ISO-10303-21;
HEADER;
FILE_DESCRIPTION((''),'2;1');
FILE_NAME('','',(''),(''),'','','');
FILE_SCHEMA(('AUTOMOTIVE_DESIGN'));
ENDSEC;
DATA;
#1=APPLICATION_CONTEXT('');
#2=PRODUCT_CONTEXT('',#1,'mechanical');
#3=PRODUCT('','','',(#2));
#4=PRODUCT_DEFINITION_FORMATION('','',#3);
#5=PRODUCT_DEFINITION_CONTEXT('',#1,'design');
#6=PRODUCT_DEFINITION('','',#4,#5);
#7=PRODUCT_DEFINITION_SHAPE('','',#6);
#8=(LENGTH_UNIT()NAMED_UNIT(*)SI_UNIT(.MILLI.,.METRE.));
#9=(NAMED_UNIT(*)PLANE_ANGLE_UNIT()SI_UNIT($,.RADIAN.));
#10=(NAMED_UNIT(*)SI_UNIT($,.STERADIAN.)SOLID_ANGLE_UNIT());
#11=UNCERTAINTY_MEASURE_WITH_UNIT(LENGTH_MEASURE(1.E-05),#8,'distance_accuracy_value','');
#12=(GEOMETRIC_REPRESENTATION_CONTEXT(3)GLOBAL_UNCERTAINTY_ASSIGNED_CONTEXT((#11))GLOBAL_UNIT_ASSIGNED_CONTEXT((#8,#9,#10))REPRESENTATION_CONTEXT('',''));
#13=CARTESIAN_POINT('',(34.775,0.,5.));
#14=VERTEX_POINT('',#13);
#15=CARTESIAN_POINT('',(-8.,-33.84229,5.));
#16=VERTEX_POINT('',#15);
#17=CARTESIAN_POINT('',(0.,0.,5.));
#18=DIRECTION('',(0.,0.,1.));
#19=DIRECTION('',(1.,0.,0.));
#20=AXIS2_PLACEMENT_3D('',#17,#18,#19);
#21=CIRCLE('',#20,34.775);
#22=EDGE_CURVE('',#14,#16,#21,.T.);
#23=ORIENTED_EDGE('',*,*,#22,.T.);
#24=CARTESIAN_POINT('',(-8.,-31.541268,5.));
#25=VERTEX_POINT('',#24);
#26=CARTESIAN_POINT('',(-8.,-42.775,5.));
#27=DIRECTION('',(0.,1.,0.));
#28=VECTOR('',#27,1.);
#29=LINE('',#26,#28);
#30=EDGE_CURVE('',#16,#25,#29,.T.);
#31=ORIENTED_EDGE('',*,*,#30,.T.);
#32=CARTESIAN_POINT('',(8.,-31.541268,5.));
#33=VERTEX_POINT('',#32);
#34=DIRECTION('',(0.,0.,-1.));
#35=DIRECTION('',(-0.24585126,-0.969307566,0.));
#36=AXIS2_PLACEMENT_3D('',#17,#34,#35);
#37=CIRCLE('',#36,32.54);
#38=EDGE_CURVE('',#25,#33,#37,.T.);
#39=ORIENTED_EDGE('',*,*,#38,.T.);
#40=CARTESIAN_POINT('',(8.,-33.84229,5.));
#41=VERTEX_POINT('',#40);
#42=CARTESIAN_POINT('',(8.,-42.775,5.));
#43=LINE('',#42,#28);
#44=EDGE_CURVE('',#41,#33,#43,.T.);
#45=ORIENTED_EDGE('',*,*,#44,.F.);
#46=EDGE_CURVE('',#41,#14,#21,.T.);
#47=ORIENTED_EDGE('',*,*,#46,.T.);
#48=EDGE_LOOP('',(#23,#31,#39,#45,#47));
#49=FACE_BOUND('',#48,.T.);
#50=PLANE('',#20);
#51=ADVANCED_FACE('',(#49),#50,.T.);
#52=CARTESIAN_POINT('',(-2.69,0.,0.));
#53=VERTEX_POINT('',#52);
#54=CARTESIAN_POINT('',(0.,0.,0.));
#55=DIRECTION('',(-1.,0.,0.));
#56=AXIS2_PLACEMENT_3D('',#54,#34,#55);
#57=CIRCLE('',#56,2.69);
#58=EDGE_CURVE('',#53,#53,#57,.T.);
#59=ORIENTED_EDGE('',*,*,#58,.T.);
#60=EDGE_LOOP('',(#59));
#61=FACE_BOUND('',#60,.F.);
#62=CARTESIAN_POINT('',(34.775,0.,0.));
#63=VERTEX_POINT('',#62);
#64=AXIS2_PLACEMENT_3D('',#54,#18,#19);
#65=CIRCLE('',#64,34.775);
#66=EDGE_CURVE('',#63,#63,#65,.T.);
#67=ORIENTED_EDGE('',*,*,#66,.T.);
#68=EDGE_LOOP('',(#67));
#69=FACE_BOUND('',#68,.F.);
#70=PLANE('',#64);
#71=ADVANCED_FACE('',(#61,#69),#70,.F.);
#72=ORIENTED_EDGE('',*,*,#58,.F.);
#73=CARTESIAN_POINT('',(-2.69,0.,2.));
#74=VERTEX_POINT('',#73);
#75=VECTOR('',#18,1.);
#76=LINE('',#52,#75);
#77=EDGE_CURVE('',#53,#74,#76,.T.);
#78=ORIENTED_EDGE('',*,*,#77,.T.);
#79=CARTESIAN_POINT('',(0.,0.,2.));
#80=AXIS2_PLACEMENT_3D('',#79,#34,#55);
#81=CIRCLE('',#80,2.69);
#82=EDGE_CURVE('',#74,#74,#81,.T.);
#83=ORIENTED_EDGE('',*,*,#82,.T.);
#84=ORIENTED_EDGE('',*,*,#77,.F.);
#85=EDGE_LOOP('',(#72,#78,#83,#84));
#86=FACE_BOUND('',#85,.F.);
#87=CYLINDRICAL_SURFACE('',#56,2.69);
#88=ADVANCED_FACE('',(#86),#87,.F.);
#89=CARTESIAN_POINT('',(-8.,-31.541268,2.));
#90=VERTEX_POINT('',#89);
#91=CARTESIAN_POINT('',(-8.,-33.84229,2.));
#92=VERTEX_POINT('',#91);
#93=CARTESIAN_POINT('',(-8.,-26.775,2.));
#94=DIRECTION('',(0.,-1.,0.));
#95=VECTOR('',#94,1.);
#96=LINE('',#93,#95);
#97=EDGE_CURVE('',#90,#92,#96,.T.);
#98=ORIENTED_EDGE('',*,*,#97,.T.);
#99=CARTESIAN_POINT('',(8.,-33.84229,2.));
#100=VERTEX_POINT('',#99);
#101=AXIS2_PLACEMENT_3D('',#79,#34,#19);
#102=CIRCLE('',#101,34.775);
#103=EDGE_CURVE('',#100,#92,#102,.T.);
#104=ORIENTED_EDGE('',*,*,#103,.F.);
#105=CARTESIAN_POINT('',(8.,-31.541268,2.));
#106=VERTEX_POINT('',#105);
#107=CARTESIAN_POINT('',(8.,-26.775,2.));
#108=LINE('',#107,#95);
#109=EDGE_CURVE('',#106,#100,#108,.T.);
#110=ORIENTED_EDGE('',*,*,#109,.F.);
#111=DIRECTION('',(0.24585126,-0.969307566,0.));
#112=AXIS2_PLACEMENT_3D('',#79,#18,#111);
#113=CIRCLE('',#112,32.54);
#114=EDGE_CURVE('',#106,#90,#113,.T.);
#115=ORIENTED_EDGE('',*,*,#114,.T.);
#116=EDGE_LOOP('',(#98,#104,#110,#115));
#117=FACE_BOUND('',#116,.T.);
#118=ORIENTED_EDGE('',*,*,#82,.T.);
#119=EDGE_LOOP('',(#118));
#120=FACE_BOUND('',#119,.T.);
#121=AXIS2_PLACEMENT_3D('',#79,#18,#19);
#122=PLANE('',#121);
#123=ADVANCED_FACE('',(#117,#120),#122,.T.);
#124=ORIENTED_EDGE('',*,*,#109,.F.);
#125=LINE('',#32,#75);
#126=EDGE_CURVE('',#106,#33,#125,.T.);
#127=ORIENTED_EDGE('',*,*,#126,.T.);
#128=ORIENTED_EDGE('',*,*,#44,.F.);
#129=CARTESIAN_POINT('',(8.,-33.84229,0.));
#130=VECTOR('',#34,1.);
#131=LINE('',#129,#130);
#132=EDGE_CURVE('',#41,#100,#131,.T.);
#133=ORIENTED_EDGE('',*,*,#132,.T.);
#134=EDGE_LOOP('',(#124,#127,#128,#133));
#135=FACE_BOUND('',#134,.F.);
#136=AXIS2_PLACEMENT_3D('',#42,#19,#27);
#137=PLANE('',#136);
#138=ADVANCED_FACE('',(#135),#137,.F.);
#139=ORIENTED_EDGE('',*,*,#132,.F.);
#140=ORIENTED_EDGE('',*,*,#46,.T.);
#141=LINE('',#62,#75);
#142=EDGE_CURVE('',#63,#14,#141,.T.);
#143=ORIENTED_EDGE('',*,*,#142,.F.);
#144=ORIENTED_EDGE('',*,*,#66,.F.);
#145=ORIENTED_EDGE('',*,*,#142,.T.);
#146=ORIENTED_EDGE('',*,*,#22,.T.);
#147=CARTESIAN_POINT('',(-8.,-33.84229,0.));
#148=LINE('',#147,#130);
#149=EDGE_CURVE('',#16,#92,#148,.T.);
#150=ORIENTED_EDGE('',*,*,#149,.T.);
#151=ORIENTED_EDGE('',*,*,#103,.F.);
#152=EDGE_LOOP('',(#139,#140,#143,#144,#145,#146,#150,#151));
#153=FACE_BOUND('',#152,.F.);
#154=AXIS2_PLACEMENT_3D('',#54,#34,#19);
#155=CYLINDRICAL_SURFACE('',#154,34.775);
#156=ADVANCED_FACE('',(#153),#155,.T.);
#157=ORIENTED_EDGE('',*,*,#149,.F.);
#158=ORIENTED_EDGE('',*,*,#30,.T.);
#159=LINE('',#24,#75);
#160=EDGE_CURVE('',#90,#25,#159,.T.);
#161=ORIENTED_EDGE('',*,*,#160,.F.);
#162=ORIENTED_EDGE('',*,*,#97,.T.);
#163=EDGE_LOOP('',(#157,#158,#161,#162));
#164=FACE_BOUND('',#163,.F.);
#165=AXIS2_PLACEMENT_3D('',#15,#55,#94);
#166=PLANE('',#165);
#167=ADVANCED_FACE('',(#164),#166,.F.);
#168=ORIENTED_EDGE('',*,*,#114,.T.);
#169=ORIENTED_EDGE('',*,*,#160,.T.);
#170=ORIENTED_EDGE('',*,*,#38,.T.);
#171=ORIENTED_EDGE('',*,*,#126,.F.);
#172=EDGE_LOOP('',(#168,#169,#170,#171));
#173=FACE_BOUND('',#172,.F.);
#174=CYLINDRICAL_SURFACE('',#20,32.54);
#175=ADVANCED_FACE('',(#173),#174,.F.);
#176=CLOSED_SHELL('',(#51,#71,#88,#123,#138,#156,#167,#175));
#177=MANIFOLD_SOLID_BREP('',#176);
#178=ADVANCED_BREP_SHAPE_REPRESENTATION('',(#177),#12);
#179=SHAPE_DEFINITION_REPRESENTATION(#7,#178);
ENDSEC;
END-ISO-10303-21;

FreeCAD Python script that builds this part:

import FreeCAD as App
import Part
import Sketcher
from FreeCAD import Vector


def add_polygon(sketch, points):
    """Adds a closed chain of lines whose ends are joined by coincident constraints."""
    first, n = sketch.GeometryCount, len(points)
    for a, b in zip(points, points[1:] + points[:1]):
        sketch.addGeometry(Part.LineSegment(App.Vector(*a, 0), App.Vector(*b, 0)), False)
    for i in range(n):
        sketch.addConstraint(Sketcher.Constraint("Coincident", first + i, 2, first + (i + 1) % n, 1))

doc = App.newDocument("Part")
body = doc.addObject("PartDesign::Body", "Body")

# Sketch on XY plane
sketch1 = body.newObject("Sketcher::SketchObject", "Sketch")
sketch1.AttachmentSupport = (doc.getObject("XY_Plane"), [""])
sketch1.MapMode = "FlatFace"
sketch1.addGeometry(Part.Circle(Vector(0, 0, 0), Vector(0, 0, 1), 34.775), False)
sketch1.addConstraint([
    Sketcher.Constraint("Coincident", 0, 3, -1, 1),
    Sketcher.Constraint("Diameter", 0, 69.55),
])
pad1 = body.newObject("PartDesign::Pad", "Pad")
pad1.Profile = sketch1
pad1.Length = 5

# Sketch on XY plane
sketch2 = body.newObject("Sketcher::SketchObject", "Sketch001")
sketch2.AttachmentSupport = (doc.getObject("XY_Plane"), [""])
sketch2.MapMode = "FlatFace"
sketch2.AttachmentOffset = App.Placement(Vector(0, 0, 5), App.Rotation())
sketch2.addGeometry(Part.Circle(Vector(0, 0, 0), Vector(0, 0, 1), 32.54), False)
sketch2.addConstraint([
    Sketcher.Constraint("Coincident", 0, 3, -1, 1),
    Sketcher.Constraint("Diameter", 0, 65.08),
])
pocket1 = body.newObject("PartDesign::Pocket", "Pocket")
pocket1.Profile = sketch2
pocket1.Length = 3

# Sketch on XY plane
sketch3 = body.newObject("Sketcher::SketchObject", "Sketch002")
sketch3.AttachmentSupport = (doc.getObject("XY_Plane"), [""])
sketch3.MapMode = "FlatFace"
sketch3.addGeometry(Part.Circle(Vector(0, 0, 0), Vector(0, 0, 1), 2.69), False)
sketch3.addConstraint([
    Sketcher.Constraint("Coincident", 0, 3, -1, 1),
    Sketcher.Constraint("Diameter", 0, 5.38),
])
pocket2 = body.newObject("PartDesign::Pocket", "Pocket001")
pocket2.Profile = sketch3
pocket2.Type = "ThroughAll"
pocket2.Reversed = True

# Sketch on XY plane
sketch4 = body.newObject("Sketcher::SketchObject", "Sketch003")
sketch4.AttachmentSupport = (doc.getObject("XY_Plane"), [""])
sketch4.MapMode = "FlatFace"
sketch4.AttachmentOffset = App.Placement(Vector(0, 0, 5), App.Rotation())
add_polygon(sketch4, [(-8, -42.775), (8, -42.775), (8, -26.775), (-8, -26.775)])  # lines 0-3
sketch4.addConstraint([
    Sketcher.Constraint("Horizontal", 0),
    Sketcher.Constraint("Vertical", 1),
    Sketcher.Constraint("Horizontal", 2),
    Sketcher.Constraint("Vertical", 3),
    Sketcher.Constraint("Equal", 2, 1),
    Sketcher.Constraint("DistanceX", 0, 1, 0, 2, 16.0),
    Sketcher.Constraint("DistanceX", -1, 1, 0, 2, 8.0),
    Sketcher.Constraint("DistanceY", 0, 2, -1, 1, 42.775),
])
pocket3 = body.newObject("PartDesign::Pocket", "Pocket002")
pocket3.Profile = sketch4
pocket3.Length = 3

doc.recompute()
